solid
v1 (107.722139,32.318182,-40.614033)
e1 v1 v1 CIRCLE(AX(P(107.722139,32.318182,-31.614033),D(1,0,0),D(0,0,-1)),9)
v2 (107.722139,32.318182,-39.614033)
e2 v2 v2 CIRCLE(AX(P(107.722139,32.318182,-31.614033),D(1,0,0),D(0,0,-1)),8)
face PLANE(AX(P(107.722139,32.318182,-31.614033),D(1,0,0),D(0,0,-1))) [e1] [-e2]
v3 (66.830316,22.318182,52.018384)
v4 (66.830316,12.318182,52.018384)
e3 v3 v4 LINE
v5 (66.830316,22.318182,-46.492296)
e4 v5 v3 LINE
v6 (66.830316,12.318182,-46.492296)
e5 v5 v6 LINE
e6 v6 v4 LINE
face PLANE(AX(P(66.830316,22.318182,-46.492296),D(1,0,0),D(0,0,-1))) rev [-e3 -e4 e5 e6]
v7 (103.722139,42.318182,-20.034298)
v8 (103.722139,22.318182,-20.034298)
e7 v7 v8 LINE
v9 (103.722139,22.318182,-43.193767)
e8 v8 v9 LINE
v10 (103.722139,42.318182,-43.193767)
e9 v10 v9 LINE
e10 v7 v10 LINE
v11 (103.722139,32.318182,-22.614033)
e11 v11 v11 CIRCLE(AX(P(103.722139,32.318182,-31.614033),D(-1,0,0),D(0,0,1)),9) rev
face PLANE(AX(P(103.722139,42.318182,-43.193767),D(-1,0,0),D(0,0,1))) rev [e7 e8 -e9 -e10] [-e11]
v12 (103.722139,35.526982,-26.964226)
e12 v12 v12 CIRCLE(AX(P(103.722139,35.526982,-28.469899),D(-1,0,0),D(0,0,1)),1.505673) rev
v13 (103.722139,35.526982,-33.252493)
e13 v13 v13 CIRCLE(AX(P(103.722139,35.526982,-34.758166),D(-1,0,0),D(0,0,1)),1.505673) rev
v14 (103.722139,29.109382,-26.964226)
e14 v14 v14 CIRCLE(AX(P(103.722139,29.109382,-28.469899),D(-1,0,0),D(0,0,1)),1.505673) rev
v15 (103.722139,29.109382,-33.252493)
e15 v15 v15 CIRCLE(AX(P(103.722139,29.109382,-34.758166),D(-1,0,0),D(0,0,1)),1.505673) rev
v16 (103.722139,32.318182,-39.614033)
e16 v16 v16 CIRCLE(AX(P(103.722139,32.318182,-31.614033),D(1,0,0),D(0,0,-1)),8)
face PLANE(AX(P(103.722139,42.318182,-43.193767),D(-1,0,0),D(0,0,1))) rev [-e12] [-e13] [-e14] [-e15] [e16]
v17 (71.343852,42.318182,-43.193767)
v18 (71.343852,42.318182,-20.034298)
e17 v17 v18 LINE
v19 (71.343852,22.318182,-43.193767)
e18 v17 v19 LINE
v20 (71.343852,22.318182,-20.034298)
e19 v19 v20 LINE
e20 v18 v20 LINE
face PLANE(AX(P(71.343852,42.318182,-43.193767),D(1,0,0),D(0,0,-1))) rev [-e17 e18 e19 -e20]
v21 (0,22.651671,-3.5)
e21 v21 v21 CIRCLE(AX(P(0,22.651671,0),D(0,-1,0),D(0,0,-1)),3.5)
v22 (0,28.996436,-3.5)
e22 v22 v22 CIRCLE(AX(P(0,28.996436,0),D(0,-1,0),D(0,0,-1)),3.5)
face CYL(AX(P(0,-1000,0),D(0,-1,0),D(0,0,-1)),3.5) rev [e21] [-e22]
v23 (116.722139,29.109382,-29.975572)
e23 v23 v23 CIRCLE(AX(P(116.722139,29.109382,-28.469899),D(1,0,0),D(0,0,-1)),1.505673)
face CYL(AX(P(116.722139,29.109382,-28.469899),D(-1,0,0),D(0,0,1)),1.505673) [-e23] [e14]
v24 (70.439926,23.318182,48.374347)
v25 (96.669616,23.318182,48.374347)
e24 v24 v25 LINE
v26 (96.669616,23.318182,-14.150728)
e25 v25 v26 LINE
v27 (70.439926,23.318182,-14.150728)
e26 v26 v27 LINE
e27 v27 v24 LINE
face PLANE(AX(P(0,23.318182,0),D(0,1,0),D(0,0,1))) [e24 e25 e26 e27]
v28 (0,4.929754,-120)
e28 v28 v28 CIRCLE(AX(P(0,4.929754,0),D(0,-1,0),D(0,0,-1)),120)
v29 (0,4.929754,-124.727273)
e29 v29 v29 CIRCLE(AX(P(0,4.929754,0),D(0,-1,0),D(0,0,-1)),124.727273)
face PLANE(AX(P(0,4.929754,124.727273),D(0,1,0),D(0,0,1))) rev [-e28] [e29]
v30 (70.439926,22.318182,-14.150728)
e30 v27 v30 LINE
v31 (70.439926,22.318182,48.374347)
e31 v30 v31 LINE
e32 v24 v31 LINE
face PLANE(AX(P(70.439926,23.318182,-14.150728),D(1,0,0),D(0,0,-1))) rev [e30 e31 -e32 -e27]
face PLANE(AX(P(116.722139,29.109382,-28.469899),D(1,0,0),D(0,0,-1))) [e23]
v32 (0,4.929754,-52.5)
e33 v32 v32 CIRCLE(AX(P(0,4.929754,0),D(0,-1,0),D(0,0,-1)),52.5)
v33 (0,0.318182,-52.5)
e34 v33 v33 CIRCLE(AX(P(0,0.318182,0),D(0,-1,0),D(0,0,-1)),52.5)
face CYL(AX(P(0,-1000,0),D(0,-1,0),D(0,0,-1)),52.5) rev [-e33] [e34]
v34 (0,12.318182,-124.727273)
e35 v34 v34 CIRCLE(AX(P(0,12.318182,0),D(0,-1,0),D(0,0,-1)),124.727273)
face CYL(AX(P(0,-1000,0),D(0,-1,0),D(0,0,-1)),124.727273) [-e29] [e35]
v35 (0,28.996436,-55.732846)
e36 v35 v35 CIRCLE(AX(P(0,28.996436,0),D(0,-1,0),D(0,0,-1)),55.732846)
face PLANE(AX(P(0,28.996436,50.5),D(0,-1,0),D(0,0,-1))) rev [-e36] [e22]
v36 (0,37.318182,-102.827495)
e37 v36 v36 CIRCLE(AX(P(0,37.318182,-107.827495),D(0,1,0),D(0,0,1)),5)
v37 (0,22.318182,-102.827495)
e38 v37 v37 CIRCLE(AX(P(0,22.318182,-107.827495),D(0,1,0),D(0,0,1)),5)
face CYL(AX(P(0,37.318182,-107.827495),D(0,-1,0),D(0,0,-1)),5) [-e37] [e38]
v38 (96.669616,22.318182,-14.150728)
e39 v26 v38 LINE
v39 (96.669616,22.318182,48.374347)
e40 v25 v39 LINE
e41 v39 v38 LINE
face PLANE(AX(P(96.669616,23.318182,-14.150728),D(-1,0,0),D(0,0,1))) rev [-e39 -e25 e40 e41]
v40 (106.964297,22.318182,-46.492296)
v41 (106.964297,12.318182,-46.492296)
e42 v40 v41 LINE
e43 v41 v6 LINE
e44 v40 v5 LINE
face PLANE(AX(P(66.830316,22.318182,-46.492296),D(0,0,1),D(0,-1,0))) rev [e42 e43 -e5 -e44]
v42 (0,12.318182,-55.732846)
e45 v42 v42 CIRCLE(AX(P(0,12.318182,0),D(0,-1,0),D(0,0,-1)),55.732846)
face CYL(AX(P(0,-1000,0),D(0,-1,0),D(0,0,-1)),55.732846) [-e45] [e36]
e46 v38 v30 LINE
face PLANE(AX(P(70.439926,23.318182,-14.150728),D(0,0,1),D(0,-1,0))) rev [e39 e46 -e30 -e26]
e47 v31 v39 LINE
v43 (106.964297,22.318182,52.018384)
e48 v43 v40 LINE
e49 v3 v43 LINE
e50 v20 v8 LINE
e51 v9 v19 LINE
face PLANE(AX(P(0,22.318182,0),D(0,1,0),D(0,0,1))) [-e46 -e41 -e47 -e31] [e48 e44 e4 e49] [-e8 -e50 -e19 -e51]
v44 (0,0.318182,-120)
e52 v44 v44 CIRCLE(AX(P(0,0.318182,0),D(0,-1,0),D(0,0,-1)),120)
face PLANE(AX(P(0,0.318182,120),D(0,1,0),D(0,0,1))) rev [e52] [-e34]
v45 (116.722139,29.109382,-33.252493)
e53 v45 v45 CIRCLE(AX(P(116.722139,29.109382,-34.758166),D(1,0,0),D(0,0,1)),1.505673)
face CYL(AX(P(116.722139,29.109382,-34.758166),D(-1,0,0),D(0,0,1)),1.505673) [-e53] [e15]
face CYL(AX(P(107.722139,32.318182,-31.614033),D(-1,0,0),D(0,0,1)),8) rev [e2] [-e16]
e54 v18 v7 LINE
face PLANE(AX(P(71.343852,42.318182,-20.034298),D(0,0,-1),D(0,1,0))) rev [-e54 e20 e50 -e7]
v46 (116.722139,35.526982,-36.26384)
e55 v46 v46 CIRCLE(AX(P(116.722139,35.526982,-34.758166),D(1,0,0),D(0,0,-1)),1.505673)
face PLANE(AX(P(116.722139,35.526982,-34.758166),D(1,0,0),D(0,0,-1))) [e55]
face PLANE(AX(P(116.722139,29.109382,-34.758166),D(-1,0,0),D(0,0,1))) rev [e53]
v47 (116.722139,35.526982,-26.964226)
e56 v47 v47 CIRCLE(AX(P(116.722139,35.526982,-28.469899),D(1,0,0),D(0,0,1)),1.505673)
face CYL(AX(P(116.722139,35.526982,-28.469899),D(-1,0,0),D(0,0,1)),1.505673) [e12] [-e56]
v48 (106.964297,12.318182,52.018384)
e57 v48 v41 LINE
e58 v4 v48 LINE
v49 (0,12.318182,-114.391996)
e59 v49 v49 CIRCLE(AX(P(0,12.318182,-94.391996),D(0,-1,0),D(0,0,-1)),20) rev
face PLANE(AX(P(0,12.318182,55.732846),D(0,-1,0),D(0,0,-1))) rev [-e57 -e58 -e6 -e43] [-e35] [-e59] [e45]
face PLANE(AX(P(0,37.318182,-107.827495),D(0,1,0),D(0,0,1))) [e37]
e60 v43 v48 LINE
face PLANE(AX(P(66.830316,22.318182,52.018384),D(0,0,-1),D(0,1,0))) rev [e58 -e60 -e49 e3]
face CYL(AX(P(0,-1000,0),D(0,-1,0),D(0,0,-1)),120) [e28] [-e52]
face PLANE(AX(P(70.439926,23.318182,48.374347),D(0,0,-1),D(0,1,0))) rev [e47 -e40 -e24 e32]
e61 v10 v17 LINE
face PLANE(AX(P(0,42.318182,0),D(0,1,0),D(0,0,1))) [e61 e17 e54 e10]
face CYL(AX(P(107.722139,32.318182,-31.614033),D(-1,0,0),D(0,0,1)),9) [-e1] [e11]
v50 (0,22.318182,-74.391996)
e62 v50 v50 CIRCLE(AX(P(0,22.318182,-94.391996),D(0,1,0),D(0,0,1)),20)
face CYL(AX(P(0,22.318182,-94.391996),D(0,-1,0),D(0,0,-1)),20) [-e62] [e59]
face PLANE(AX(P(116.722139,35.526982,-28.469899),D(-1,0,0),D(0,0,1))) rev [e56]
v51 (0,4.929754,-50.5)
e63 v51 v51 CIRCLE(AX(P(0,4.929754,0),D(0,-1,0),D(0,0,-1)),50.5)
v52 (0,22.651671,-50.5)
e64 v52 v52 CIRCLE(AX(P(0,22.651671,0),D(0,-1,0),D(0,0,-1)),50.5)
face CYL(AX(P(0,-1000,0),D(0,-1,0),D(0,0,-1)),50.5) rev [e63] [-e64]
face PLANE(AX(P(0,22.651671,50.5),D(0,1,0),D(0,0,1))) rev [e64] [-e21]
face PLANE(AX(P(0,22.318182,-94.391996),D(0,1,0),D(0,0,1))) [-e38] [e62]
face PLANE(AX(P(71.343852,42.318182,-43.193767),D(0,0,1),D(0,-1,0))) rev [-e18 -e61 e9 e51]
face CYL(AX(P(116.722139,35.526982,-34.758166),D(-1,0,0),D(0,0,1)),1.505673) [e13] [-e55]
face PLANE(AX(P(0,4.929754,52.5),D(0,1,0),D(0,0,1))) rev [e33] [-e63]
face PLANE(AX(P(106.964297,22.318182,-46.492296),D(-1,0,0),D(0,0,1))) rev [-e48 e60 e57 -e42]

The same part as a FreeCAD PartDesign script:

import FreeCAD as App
import Part
import Sketcher


def add_polygon(sketch, points):
    """Adds a closed chain of lines whose ends are joined by coincident constraints."""
    first, n = sketch.GeometryCount, len(points)
    for a, b in zip(points, points[1:] + points[:1]):
        sketch.addGeometry(Part.LineSegment(App.Vector(*a, 0), App.Vector(*b, 0)), False)
    for i in range(n):
        sketch.addConstraint(Sketcher.Constraint("Coincident", first + i, 2, first + (i + 1) % n, 1))

doc = App.newDocument("Part")
body = doc.addObject("PartDesign::Body", "Body")

# Sketch on YZ plane
sketch1 = body.newObject("Sketcher::SketchObject", "Sketch")
sketch1.AttachmentSupport = (doc.getObject("YZ_Plane"), [""])
sketch1.MapMode = "FlatFace"
add_polygon(sketch1, [(4.929754, 124.727273), (4.929754, 120), (0.318182, 120), (0.318182, 52.5), (4.929754, 52.5), (4.929754, 50.5), (22.651671, 50.5), (22.651671, 3.5), (28.996436, 3.5), (28.996436, 55.732846), (12.318182, 55.732846), (12.318182, 124.727273)])  # lines 0-11
sketch1.addConstraint(Sketcher.Constraint("Vertical", 0))
sketch1.addConstraint(Sketcher.Constraint("Horizontal", 1))
sketch1.addConstraint(Sketcher.Constraint("Vertical", 2))
sketch1.addConstraint(Sketcher.Constraint("Horizontal", 3))
sketch1.addConstraint(Sketcher.Constraint("Vertical", 4))
sketch1.addConstraint(Sketcher.Constraint("Horizontal", 5))
sketch1.addConstraint(Sketcher.Constraint("Vertical", 6))
sketch1.addConstraint(Sketcher.Constraint("Horizontal", 7))
sketch1.addConstraint(Sketcher.Constraint("Vertical", 8))
sketch1.addConstraint(Sketcher.Constraint("Horizontal", 9))
sketch1.addConstraint(Sketcher.Constraint("Vertical", 10))
sketch1.addConstraint(Sketcher.Constraint("Horizontal", 11))
sketch1.addConstraint(Sketcher.Constraint("Vertical", 0, 2, 3, 2))
sketch1.addConstraint(Sketcher.Constraint("DistanceY", 4, 2, 4, 1, 2.0))
sketch1.addConstraint(Sketcher.Constraint("DistanceY", 6, 2, 6, 1, 47.0))
sketch1.addConstraint(Sketcher.Constraint("DistanceY", 2, 2, 2, 1, 67.5))
sketch1.addConstraint(Sketcher.Constraint("DistanceY", -1, 1, 0, 2, 120.0))
sketch1.addConstraint(Sketcher.Constraint("DistanceX", 2, 2, 9, 2, 12.0))
sketch1.addConstraint(Sketcher.Constraint("DistanceX", 1, 2, 1, 1, 4.611572))
sketch1.addConstraint(Sketcher.Constraint("DistanceX", 5, 1, 5, 2, 17.721917))
sketch1.addConstraint(Sketcher.Constraint("DistanceX", 7, 1, 7, 2, 6.344765))
sketch1.addConstraint(Sketcher.Constraint("DistanceY", 0, 2, 0, 1, 4.727273))
sketch1.addConstraint(Sketcher.Constraint("DistanceY", 8, 1, 8, 2, 52.232846))
sketch1.addConstraint(Sketcher.Constraint("DistanceX", -1, 1, 1, 2, 0.318182))
revolution = body.newObject("PartDesign::Revolution", "Revolution")
revolution.Profile = sketch1
revolution.ReferenceAxis = (sketch1, ["H_Axis"])
revolution.Angle = 360

# Sketch on XZ plane
sketch2 = body.newObject("Sketcher::SketchObject", "Sketch001")
sketch2.AttachmentSupport = (doc.getObject("XZ_Plane"), [""])
sketch2.MapMode = "FlatFace"
sketch2.AttachmentOffset = App.Placement(App.Vector(0, 0, -12.318182), App.Rotation())
sketch2.addGeometry(Part.Circle(App.Vector(0, -94.391996, 0), App.Vector(0, 0, 1), 20), False)  # 0
add_polygon(sketch2, [(66.830316, -46.492296), (66.830316, 52.018384), (106.964297, 52.018384), (106.964297, -46.492296)])  # lines 1-4
sketch2.addConstraint(Sketcher.Constraint("Vertical", 1))
sketch2.addConstraint(Sketcher.Constraint("Horizontal", 2))
sketch2.addConstraint(Sketcher.Constraint("Vertical", 3))
sketch2.addConstraint(Sketcher.Constraint("Horizontal", 4))
sketch2.addConstraint(Sketcher.Constraint("PointOnObject", 0, 3, -2))
sketch2.addConstraint(Sketcher.Constraint("Diameter", 0, 40.0))
sketch2.addConstraint(Sketcher.Constraint("DistanceX", 2, 1, 2, 2, 40.133981))
sketch2.addConstraint(Sketcher.Constraint("DistanceY", 1, 1, 1, 2, 98.51068))
sketch2.addConstraint(Sketcher.Constraint("DistanceY", 0, 3, 3, 2, 47.8997))
sketch2.addConstraint(Sketcher.Constraint("DistanceY", 0, 3, -1, 1, 94.391996))
sketch2.addConstraint(Sketcher.Constraint("DistanceX", -1, 1, 1, 2, 66.830316))
pad1 = body.newObject("PartDesign::Pad", "Pad")
pad1.Profile = sketch2
pad1.Length = 10
pad1.Reversed = True

# Sketch on XZ plane
sketch3 = body.newObject("Sketcher::SketchObject", "Sketch002")
sketch3.AttachmentSupport = (doc.getObject("XZ_Plane"), [""])
sketch3.MapMode = "FlatFace"
sketch3.AttachmentOffset = App.Placement(App.Vector(0, 0, -22.318182), App.Rotation())
add_polygon(sketch3, [(70.439926, -14.150728), (70.439926, 48.374347), (96.669616, 48.374347), (96.669616, -14.150728)])  # lines 0-3
sketch3.addConstraint(Sketcher.Constraint("Vertical", 0))
sketch3.addConstraint(Sketcher.Constraint("Horizontal", 1))
sketch3.addConstraint(Sketcher.Constraint("Vertical", 2))
sketch3.addConstraint(Sketcher.Constraint("Horizontal", 3))
sketch3.addConstraint(Sketcher.Constraint("DistanceX", 1, 1, 1, 2, 26.22969))
sketch3.addConstraint(Sketcher.Constraint("DistanceY", 0, 1, 0, 2, 62.525075))
sketch3.addConstraint(Sketcher.Constraint("DistanceY", 2, 2, -1, 1, 14.150728))
sketch3.addConstraint(Sketcher.Constraint("DistanceX", -1, 1, 0, 2, 70.439926))
pad2 = body.newObject("PartDesign::Pad", "Pad001")
pad2.Profile = sketch3
pad2.Length = 1
pad2.Reversed = True

# Sketch on XZ plane
sketch4 = body.newObject("Sketcher::SketchObject", "Sketch003")
sketch4.AttachmentSupport = (doc.getObject("XZ_Plane"), [""])
sketch4.MapMode = "FlatFace"
sketch4.AttachmentOffset = App.Placement(App.Vector(0, 0, -22.318182), App.Rotation())
sketch4.addGeometry(Part.Circle(App.Vector(0, -107.827495, 0), App.Vector(0, 0, 1), 5), False)
sketch4.addConstraint(Sketcher.Constraint("PointOnObject", 0, 3, -2))
sketch4.addConstraint(Sketcher.Constraint("Diameter", 0, 10.0))
sketch4.addConstraint(Sketcher.Constraint("DistanceY", 0, 3, -1, 1, 107.827495))
pad3 = body.newObject("PartDesign::Pad", "Pad002")
pad3.Profile = sketch4
pad3.Length = 15
pad3.Reversed = True

# Sketch on XZ plane
sketch5 = body.newObject("Sketcher::SketchObject", "Sketch004")
sketch5.AttachmentSupport = (doc.getObject("XZ_Plane"), [""])
sketch5.MapMode = "FlatFace"
sketch5.AttachmentOffset = App.Placement(App.Vector(0, 0, -22.318182), App.Rotation())
add_polygon(sketch5, [(71.343852, -43.193767), (71.343852, -20.034298), (103.722139, -20.034298), (103.722139, -43.193767)])  # lines 0-3
sketch5.addConstraint(Sketcher.Constraint("Vertical", 0))
sketch5.addConstraint(Sketcher.Constraint("Horizontal", 1))
sketch5.addConstraint(Sketcher.Constraint("Vertical", 2))
sketch5.addConstraint(Sketcher.Constraint("Horizontal", 3))
sketch5.addConstraint(Sketcher.Constraint("DistanceY", 0, 1, 0, 2, 23.159469))
sketch5.addConstraint(Sketcher.Constraint("DistanceY", 0, 2, -1, 1, 20.034298))
sketch5.addConstraint(Sketcher.Constraint("DistanceX", 1, 1, 1, 2, 32.378287))
sketch5.addConstraint(Sketcher.Constraint("DistanceX", -1, 1, 1, 2, 103.722139))
pad4 = body.newObject("PartDesign::Pad", "Pad003")
pad4.Profile = sketch5
pad4.Length = 20
pad4.Reversed = True

# Sketch on YZ plane
sketch6 = body.newObject("Sketcher::SketchObject", "Sketch005")
sketch6.AttachmentSupport = (doc.getObject("YZ_Plane"), [""])
sketch6.MapMode = "FlatFace"
sketch6.AttachmentOffset = App.Placement(App.Vector(0, 0, 103.722139), App.Rotation())
sketch6.addGeometry(Part.Circle(App.Vector(32.318182, -31.614033, 0), App.Vector(0, 0, 1), 9), False)
sketch6.addGeometry(Part.Circle(App.Vector(32.318182, -31.614033, 0), App.Vector(0, 0, 1), 8), False)
sketch6.addConstraint(Sketcher.Constraint("Coincident", 1, 3, 0, 3))
sketch6.addConstraint(Sketcher.Constraint("Diameter", 0, 18.0))
sketch6.addConstraint(Sketcher.Constraint("Diameter", 1, 16.0))
sketch6.addConstraint(Sketcher.Constraint("DistanceX", -1, 1, 0, 3, 32.318182))
sketch6.addConstraint(Sketcher.Constraint("DistanceY", 0, 3, -1, 1, 31.614033))
pad5 = body.newObject("PartDesign::Pad", "Pad004")
pad5.Profile = sketch6
pad5.Length = 4

# Sketch on YZ plane
sketch7 = body.newObject("Sketcher::SketchObject", "Sketch006")
sketch7.AttachmentSupport = (doc.getObject("YZ_Plane"), [""])
sketch7.MapMode = "FlatFace"
sketch7.AttachmentOffset = App.Placement(App.Vector(0, 0, 103.722139), App.Rotation())
sketch7.addGeometry(Part.Circle(App.Vector(35.526982, -34.758166, 0), App.Vector(0, 0, 1), 1.505673), False)
sketch7.addGeometry(Part.Circle(App.Vector(35.526982, -28.469899, 0), App.Vector(0, 0, 1), 1.505673), False)
sketch7.addGeometry(Part.Circle(App.Vector(29.109382, -34.758166, 0), App.Vector(0, 0, 1), 1.505673), False)
sketch7.addGeometry(Part.Circle(App.Vector(29.109382, -28.469899, 0), App.Vector(0, 0, 1), 1.505673), False)
sketch7.addConstraint(Sketcher.Constraint("Equal", 0, 1))
sketch7.addConstraint(Sketcher.Constraint("Equal", 1, 2))
sketch7.addConstraint(Sketcher.Constraint("Equal", 2, 3))
sketch7.addConstraint(Sketcher.Constraint("Horizontal", 0, 3, 2, 3))
sketch7.addConstraint(Sketcher.Constraint("Horizontal", 1, 3, 3, 3))
sketch7.addConstraint(Sketcher.Constraint("Vertical", 0, 3, 1, 3))
sketch7.addConstraint(Sketcher.Constraint("Vertical", 2, 3, 3, 3))
sketch7.addConstraint(Sketcher.Constraint("Diameter", 0, 3.011347))
sketch7.addConstraint(Sketcher.Constraint("DistanceY", 1, 3, -1, 1, 28.469899))
sketch7.addConstraint(Sketcher.Constraint("DistanceX", 2, 3, 0, 3, 6.4176))
sketch7.addConstraint(Sketcher.Constraint("DistanceX", -1, 1, 0, 3, 35.526982))
sketch7.addConstraint(Sketcher.Constraint("DistanceY", 0, 3, -1, 1, 34.758166))
pad6 = body.newObject("PartDesign::Pad", "Pad005")
pad6.Profile = sketch7
pad6.Length = 13

doc.recompute()
